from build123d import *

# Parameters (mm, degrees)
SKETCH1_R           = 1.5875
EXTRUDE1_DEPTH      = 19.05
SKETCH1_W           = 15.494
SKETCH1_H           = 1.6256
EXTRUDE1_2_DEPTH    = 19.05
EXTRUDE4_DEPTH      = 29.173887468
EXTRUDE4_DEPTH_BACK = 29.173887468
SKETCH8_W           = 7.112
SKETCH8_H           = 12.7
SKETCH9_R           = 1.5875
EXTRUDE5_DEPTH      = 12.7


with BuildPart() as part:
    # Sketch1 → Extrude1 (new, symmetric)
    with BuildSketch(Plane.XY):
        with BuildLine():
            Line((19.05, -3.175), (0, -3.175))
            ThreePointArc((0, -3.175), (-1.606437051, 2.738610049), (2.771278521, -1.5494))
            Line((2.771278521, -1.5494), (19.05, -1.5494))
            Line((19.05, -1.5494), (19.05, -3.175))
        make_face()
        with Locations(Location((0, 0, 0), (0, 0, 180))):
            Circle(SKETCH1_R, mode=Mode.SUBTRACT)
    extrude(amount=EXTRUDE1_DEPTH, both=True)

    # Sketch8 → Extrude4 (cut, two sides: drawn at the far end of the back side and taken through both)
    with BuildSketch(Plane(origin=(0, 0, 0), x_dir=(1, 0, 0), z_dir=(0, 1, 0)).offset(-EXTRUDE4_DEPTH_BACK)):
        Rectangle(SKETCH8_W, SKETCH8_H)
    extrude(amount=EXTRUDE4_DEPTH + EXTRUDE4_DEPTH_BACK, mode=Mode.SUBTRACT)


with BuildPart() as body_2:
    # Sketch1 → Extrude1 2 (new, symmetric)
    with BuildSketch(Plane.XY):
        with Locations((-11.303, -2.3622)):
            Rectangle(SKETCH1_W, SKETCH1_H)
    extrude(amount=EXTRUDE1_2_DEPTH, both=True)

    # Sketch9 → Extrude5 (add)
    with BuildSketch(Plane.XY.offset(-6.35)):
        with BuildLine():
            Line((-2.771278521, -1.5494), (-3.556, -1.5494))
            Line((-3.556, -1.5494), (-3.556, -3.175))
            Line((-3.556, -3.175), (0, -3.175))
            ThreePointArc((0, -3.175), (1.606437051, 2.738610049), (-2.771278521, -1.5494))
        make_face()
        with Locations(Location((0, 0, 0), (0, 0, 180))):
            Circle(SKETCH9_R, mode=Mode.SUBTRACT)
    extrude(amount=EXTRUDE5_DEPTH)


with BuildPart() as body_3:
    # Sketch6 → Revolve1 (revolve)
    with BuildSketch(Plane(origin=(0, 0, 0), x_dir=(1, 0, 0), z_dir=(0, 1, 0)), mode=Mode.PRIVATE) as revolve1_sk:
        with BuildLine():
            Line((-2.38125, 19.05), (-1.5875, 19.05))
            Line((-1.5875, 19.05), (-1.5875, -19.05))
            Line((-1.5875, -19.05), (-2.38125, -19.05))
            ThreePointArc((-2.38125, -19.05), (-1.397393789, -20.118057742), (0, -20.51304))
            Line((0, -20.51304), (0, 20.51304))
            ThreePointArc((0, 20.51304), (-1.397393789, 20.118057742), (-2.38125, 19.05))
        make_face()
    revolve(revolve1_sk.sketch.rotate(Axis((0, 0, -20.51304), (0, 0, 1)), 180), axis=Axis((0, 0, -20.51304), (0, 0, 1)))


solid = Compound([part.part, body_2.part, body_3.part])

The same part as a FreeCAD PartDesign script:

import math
import FreeCAD as App
import Part
import Sketcher
Q = App.Units.Quantity


def add_polygon(sketch, points):
    """Adds a closed chain of lines whose ends are joined by coincident constraints."""
    first, n = sketch.GeometryCount, len(points)
    for a, b in zip(points, points[1:] + points[:1]):
        sketch.addGeometry(Part.LineSegment(App.Vector(*a, 0), App.Vector(*b, 0)), False)
    for i in range(n):
        sketch.addConstraint(Sketcher.Constraint("Coincident", first + i, 2, first + (i + 1) % n, 1))

doc = App.newDocument("Part")
body = doc.addObject("PartDesign::Body", "Body")

# Sketch on XY plane
sketch1 = doc.addObject("Sketcher::SketchObject", "Sketch")
body.addObject(sketch1)
sketch1.AttachmentSupport = (doc.XY_Plane, [""])
sketch1.MapMode = "FlatFace"
sketch1.addGeometry(Part.LineSegment(App.Vector(0, -3.175, 0), App.Vector(19.05, -3.175, 0)), False)
sketch1.addGeometry(Part.LineSegment(App.Vector(19.05, -3.175, 0), App.Vector(19.05, -1.5494, 0)), False)
sketch1.addGeometry(Part.LineSegment(App.Vector(19.05, -1.5494, 0), App.Vector(2.771279, -1.5494, 0)), False)
sketch1.addGeometry(Part.ArcOfCircle(Part.Circle(App.Vector(0, 0, 0), App.Vector(0, 0, 1), 3.175), math.radians(-29.209212), math.radians(270)), False)
sketch1.addGeometry(Part.Circle(App.Vector(0, 0, 0), App.Vector(0, 0, 1), 1.5875), False)
sketch1.addConstraint(Sketcher.Constraint("Coincident", 0, 2, 1, 1))
sketch1.addConstraint(Sketcher.Constraint("Coincident", 1, 2, 2, 1))
sketch1.addConstraint(Sketcher.Constraint("Coincident", 2, 2, 3, 1))
sketch1.addConstraint(Sketcher.Constraint("Tangent", 3, 2, 0, 1))
sketch1.addConstraint(Sketcher.Constraint("Horizontal", 0))
sketch1.addConstraint(Sketcher.Constraint("Vertical", 1))
sketch1.addConstraint(Sketcher.Constraint("Horizontal", 2))
sketch1.addConstraint(Sketcher.Constraint("Coincident", 3, 3, -1, 1))
sketch1.addConstraint(Sketcher.Constraint("Coincident", 4, 3, -1, 1))
sketch1.addConstraint(Sketcher.Constraint("Diameter", 4, Q("0.125 in")))
sketch1.addConstraint(Sketcher.Constraint("Radius", 3, Q("0.125 in")))
sketch1.addConstraint(Sketcher.Constraint("DistanceX", 0, 1, 0, 2, Q("0.75 in")))
sketch1.addConstraint(Sketcher.Constraint("DistanceY", 1, 1, 1, 2, Q("0.064 in")))
pad1 = doc.addObject("PartDesign::Pad", "Pad")
body.addObject(pad1)
pad1.Profile = sketch1
pad1.Length = Q("1.5 in")
pad1.Midplane = True

# Sketch on XZ plane
sketch2 = doc.addObject("Sketcher::SketchObject", "Sketch001")
body.addObject(sketch2)
sketch2.AttachmentSupport = (doc.XZ_Plane, [""])
sketch2.MapMode = "FlatFace"
add_polygon(sketch2, [(-3.556, -6.35), (-3.556, 6.35), (3.556, 6.35), (3.556, -6.35)])  # lines 0-3
sketch2.addConstraint(Sketcher.Constraint("Vertical", 0))
sketch2.addConstraint(Sketcher.Constraint("Horizontal", 1))
sketch2.addConstraint(Sketcher.Constraint("Vertical", 2))
sketch2.addConstraint(Sketcher.Constraint("Horizontal", 3))
sketch2.addConstraint(Sketcher.Constraint("Symmetric", 0, 2, 2, 2, -1, 1))
sketch2.addConstraint(Sketcher.Constraint("DistanceY", 0, 1, 0, 2, Q("0.5 in")))
sketch2.addConstraint(Sketcher.Constraint("DistanceX", 1, 1, 1, 2, Q("0.28 in")))
pocket1 = doc.addObject("PartDesign::Pocket", "Pocket")
body.addObject(pocket1)
pocket1.Profile = sketch2
pocket1.Type = "ThroughAll"
pocket1.Midplane = True
body2 = doc.addObject("PartDesign::Body", "Body001")

# Sketch on XY plane
sketch3 = doc.addObject("Sketcher::SketchObject", "Sketch002")
body2.addObject(sketch3)
sketch3.AttachmentSupport = (doc.getObject("XY_Plane001"), [""])
sketch3.MapMode = "FlatFace"
add_polygon(sketch3, [(-19.05, -1.5494), (-19.05, -3.175), (-3.556, -3.175), (-3.556, -1.5494)])  # lines 0-3
sketch3.addConstraint(Sketcher.Constraint("Vertical", 0))
sketch3.addConstraint(Sketcher.Constraint("Horizontal", 1))
sketch3.addConstraint(Sketcher.Constraint("Vertical", 2))
sketch3.addConstraint(Sketcher.Constraint("Horizontal", 3))
sketch3.addConstraint(Sketcher.Constraint("DistanceX", 1, 1, 1, 2, Q("0.61 in")))
sketch3.addConstraint(Sketcher.Constraint("DistanceY", 0, 2, 0, 1, Q("0.064 in")))
sketch3.addConstraint(Sketcher.Constraint("DistanceX", 0, 2, -1, 1, Q("0.75 in")))
sketch3.addConstraint(Sketcher.Constraint("DistanceY", 0, 2, -1, 1, Q("0.125 in")))
pad2 = doc.addObject("PartDesign::Pad", "Pad001")
body2.addObject(pad2)
pad2.Profile = sketch3
pad2.Length = Q("1.5 in")
pad2.Midplane = True

# Sketch on XY plane
sketch4 = doc.addObject("Sketcher::SketchObject", "Sketch003")
body2.addObject(sketch4)
sketch4.AttachmentSupport = (doc.getObject("XY_Plane001"), [""])
sketch4.MapMode = "FlatFace"
sketch4.AttachmentOffset = App.Placement(App.Vector(0, 0, -0.25 * 25.4), App.Rotation())
sketch4.addGeometry(Part.LineSegment(App.Vector(-2.771279, -1.5494, 0), App.Vector(-3.556, -1.5494, 0)), False)
sketch4.addGeometry(Part.LineSegment(App.Vector(-3.556, -1.5494, 0), App.Vector(-3.556, -3.175, 0)), False)
sketch4.addGeometry(Part.LineSegment(App.Vector(-3.556, -3.175, 0), App.Vector(0, -3.175, 0)), False)
sketch4.addGeometry(Part.ArcOfCircle(Part.Circle(App.Vector(0, 0, 0), App.Vector(0, 0, 1), 3.175), math.radians(-90), math.radians(209.209212)), False)
sketch4.addGeometry(Part.Circle(App.Vector(0, 0, 0), App.Vector(0, 0, 1), 1.5875), False)
sketch4.addConstraint(Sketcher.Constraint("Coincident", 0, 2, 1, 1))
sketch4.addConstraint(Sketcher.Constraint("Coincident", 1, 2, 2, 1))
sketch4.addConstraint(Sketcher.Constraint("Tangent", 2, 2, 3, 1))
sketch4.addConstraint(Sketcher.Constraint("Coincident", 3, 2, 0, 1))
sketch4.addConstraint(Sketcher.Constraint("Horizontal", 0))
sketch4.addConstraint(Sketcher.Constraint("Vertical", 1))
sketch4.addConstraint(Sketcher.Constraint("Horizontal", 2))
sketch4.addConstraint(Sketcher.Constraint("Coincident", 3, 3, -1, 1))
sketch4.addConstraint(Sketcher.Constraint("Coincident", 4, 3, -1, 1))
sketch4.addConstraint(Sketcher.Constraint("Diameter", 4, Q("0.125 in")))
sketch4.addConstraint(Sketcher.Constraint("Radius", 3, Q("0.125 in")))
sketch4.addConstraint(Sketcher.Constraint("DistanceX", 2, 1, 2, 2, Q("0.14 in")))
sketch4.addConstraint(Sketcher.Constraint("DistanceY", 1, 2, 1, 1, Q("0.064 in")))
pad3 = doc.addObject("PartDesign::Pad", "Pad002")
body2.addObject(pad3)
pad3.Profile = sketch4
pad3.Length = Q("0.5 in")
body3 = doc.addObject("PartDesign::Body", "Body002")

# Sketch on XZ plane
sketch5 = doc.addObject("Sketcher::SketchObject", "Sketch004")
body3.addObject(sketch5)
sketch5.AttachmentSupport = (doc.getObject("XZ_Plane002"), [""])
sketch5.MapMode = "FlatFace"
sketch5.addGeometry(Part.LineSegment(App.Vector(-2.38125, -19.05, 0), App.Vector(-1.5875, -19.05, 0)), False)
sketch5.addGeometry(Part.LineSegment(App.Vector(-1.5875, -19.05, 0), App.Vector(-1.5875, 19.05, 0)), False)
sketch5.addGeometry(Part.LineSegment(App.Vector(-1.5875, 19.05, 0), App.Vector(-2.38125, 19.05, 0)), False)
sketch5.addGeometry(Part.ArcOfCircle(Part.Circle(App.Vector(0, 17.843654, 0), App.Vector(0, 0, 1), 2.669386), math.radians(90), math.radians(153.133131)), False)
sketch5.addGeometry(Part.LineSegment(App.Vector(0, 20.51304, 0), App.Vector(0, -20.51304, 0)), False)
sketch5.addGeometry(Part.ArcOfCircle(Part.Circle(App.Vector(0, -17.843654, 0), App.Vector(0, 0, 1), 2.669386), math.radians(-153.133131), math.radians(-90)), False)
sketch5.addConstraint(Sketcher.Constraint("Coincident", 0, 2, 1, 1))
sketch5.addConstraint(Sketcher.Constraint("Coincident", 1, 2, 2, 1))
sketch5.addConstraint(Sketcher.Constraint("Coincident", 2, 2, 3, 2))
sketch5.addConstraint(Sketcher.Constraint("Coincident", 3, 1, 4, 1))
sketch5.addConstraint(Sketcher.Constraint("Coincident", 4, 2, 5, 2))
sketch5.addConstraint(Sketcher.Constraint("Coincident", 5, 1, 0, 1))
sketch5.addConstraint(Sketcher.Constraint("Horizontal", 0))
sketch5.addConstraint(Sketcher.Constraint("Vertical", 1))
sketch5.addConstraint(Sketcher.Constraint("Horizontal", 2))
sketch5.addConstraint(Sketcher.Constraint("Vertical", 4))
sketch5.addConstraint(Sketcher.Constraint("Equal", 3, 5))
sketch5.addConstraint(Sketcher.Constraint("Symmetric", 3, 3, 5, 3, -1, 1))
sketch5.addConstraint(Sketcher.Constraint("Symmetric", 2, 2, 5, 1, -1))
sketch5.addConstraint(Sketcher.Constraint("PointOnObject", 3, 1, -2))
sketch5.addConstraint(Sketcher.Constraint("DistanceY", 1, 1, 1, 2, Q("1.5 in")))
sketch5.addConstraint(Sketcher.Constraint("DistanceX", 0, 1, 0, 2, Q("0.03125 in")))
sketch5.addConstraint(Sketcher.Constraint("DistanceY", 4, 2, 4, 1, Q("1.6152 in")))
sketch5.addConstraint(Sketcher.Constraint("DistanceX", 0, 2, -1, 1, Q("0.0625 in")))
revolution = doc.addObject("PartDesign::Revolution", "Revolution")
body3.addObject(revolution)
revolution.Profile = sketch5
revolution.ReferenceAxis = (sketch5, ["V_Axis"])
revolution.Angle = 360

doc.recompute()
